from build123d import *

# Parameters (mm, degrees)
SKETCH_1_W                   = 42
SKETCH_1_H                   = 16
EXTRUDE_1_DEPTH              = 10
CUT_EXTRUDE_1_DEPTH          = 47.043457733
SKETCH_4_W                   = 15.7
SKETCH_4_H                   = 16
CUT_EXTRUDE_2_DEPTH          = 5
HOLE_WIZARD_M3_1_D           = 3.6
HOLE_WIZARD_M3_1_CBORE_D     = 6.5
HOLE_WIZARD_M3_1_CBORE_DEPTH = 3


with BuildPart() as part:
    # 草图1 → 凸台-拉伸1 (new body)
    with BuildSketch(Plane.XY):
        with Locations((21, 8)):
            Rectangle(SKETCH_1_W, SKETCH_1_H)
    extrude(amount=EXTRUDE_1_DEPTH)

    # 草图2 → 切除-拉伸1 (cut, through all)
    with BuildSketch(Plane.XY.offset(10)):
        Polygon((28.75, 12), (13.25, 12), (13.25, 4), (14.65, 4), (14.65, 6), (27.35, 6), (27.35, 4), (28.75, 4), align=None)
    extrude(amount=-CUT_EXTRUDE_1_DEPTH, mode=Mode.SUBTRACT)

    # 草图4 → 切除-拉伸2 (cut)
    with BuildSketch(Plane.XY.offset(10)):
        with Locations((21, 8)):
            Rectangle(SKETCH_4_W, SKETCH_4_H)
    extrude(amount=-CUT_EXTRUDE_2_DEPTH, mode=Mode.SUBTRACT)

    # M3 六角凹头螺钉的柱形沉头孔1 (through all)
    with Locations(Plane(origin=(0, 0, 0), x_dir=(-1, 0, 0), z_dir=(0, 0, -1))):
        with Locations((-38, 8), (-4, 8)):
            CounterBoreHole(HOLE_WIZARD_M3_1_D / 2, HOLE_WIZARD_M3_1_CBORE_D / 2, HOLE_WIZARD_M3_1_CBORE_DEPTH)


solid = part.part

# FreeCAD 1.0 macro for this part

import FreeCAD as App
import Part
import Sketcher
from FreeCAD import Vector

doc = App.newDocument("Part")
body = doc.addObject("PartDesign::Body", "Body")

# Sketch on XY plane
sketch1 = body.newObject("Sketcher::SketchObject", "Sketch")
sketch1.AttachmentSupport = (doc.getObject("XY_Plane"), [""])
sketch1.MapMode = "FlatFace"
sketch1.addGeometry([
    Part.LineSegment(Vector(0, 16, 0), Vector(0, 0, 0)),
    Part.LineSegment(Vector(0, 0, 0), Vector(42, 0, 0)),
    Part.LineSegment(Vector(42, 0, 0), Vector(42, 16, 0)),
    Part.LineSegment(Vector(42, 16, 0), Vector(0, 16, 0)),
], False)
sketch1.addConstraint([
    Sketcher.Constraint("Coincident", 0, 2, 1, 1),
    Sketcher.Constraint("Coincident", 1, 2, 2, 1),
    Sketcher.Constraint("Coincident", 2, 2, 3, 1),
    Sketcher.Constraint("Coincident", 3, 2, 0, 1),
    Sketcher.Constraint("Vertical", 0),
    Sketcher.Constraint("Horizontal", 1),
    Sketcher.Constraint("Vertical", 2),
    Sketcher.Constraint("Horizontal", 3),
    Sketcher.Constraint("Coincident", 0, 2, -1, 1),
    Sketcher.Constraint("DistanceX", 1, 1, 1, 2, 42.0),
    Sketcher.Constraint("DistanceY", 0, 2, 0, 1, 16.0),
])
pad1 = body.newObject("PartDesign::Pad", "Pad")
pad1.Profile = sketch1
pad1.Length = 10

# Sketch on XY plane
sketch2 = body.newObject("Sketcher::SketchObject", "Sketch001")
sketch2.AttachmentSupport = (doc.getObject("XY_Plane"), [""])
sketch2.MapMode = "FlatFace"
sketch2.AttachmentOffset = App.Placement(Vector(0, 0, 10), App.Rotation())
sketch2.addGeometry([
    Part.LineSegment(Vector(28.8, 12, 0), Vector(13.2, 12, 0)),  # 0
    Part.LineSegment(Vector(13.2, 12, 0), Vector(13.2, 4, 0)),  # 1
    Part.LineSegment(Vector(13.2, 4, 0), Vector(14.7, 4, 0)),  # 2
    Part.LineSegment(Vector(14.7, 4, 0), Vector(14.7, 6, 0)),  # 3
    Part.LineSegment(Vector(14.7, 6, 0), Vector(27.4, 6, 0)),  # 4
    Part.LineSegment(Vector(27.4, 6, 0), Vector(27.4, 4, 0)),  # 5
    Part.LineSegment(Vector(27.4, 4, 0), Vector(28.8, 4, 0)),  # 6
    Part.LineSegment(Vector(28.8, 4, 0), Vector(28.8, 12, 0)),  # 7
], False)
sketch2.addConstraint([
    Sketcher.Constraint("Coincident", 0, 2, 1, 1),
    Sketcher.Constraint("Coincident", 1, 2, 2, 1),
    Sketcher.Constraint("Coincident", 2, 2, 3, 1),
    Sketcher.Constraint("Coincident", 3, 2, 4, 1),
    Sketcher.Constraint("Coincident", 4, 2, 5, 1),
    Sketcher.Constraint("Coincident", 5, 2, 6, 1),
    Sketcher.Constraint("Coincident", 6, 2, 7, 1),
    Sketcher.Constraint("Coincident", 7, 2, 0, 1),
    Sketcher.Constraint("Horizontal", 0),
    Sketcher.Constraint("Vertical", 1),
    Sketcher.Constraint("Horizontal", 2),
    Sketcher.Constraint("Vertical", 3),
    Sketcher.Constraint("Horizontal", 4),
    Sketcher.Constraint("Vertical", 5),
    Sketcher.Constraint("Horizontal", 6),
    Sketcher.Constraint("Vertical", 7),
    Sketcher.Constraint("Horizontal", 2, 2, 5, 2),
    Sketcher.Constraint("Equal", 2, 6),
    Sketcher.Constraint("DistanceY", 1, 2, 1, 1, 8.0),
    Sketcher.Constraint("DistanceY", 3, 1, 3, 2, 2.0),
    Sketcher.Constraint("DistanceX", 0, 2, 0, 1, 15.5),
    Sketcher.Constraint("DistanceX", 2, 1, 2, 2, 1.4),
    Sketcher.Constraint("DistanceY", -1, 1, 0, 2, 12.0),
    Sketcher.Constraint("DistanceX", -1, 1, 0, 2, 13.25),
])
pocket1 = body.newObject("PartDesign::Pocket", "Pocket")
pocket1.Profile = sketch2
pocket1.Type = "ThroughAll"

# Sketch on XY plane
sketch3 = body.newObject("Sketcher::SketchObject", "Sketch002")
sketch3.AttachmentSupport = (doc.getObject("XY_Plane"), [""])
sketch3.MapMode = "FlatFace"
sketch3.AttachmentOffset = App.Placement(Vector(0, 0, 10), App.Rotation())
sketch3.addGeometry([
    Part.LineSegment(Vector(13, 16, 0), Vector(13, 0, 0)),
    Part.LineSegment(Vector(13, 0, 0), Vector(29, 0, 0)),
    Part.LineSegment(Vector(29, 0, 0), Vector(29, 16, 0)),
    Part.LineSegment(Vector(29, 16, 0), Vector(13, 16, 0)),
], False)
sketch3.addConstraint([
    Sketcher.Constraint("Coincident", 0, 2, 1, 1),
    Sketcher.Constraint("Coincident", 1, 2, 2, 1),
    Sketcher.Constraint("Coincident", 2, 2, 3, 1),
    Sketcher.Constraint("Coincident", 3, 2, 0, 1),
    Sketcher.Constraint("Vertical", 0),
    Sketcher.Constraint("Horizontal", 1),
    Sketcher.Constraint("Vertical", 2),
    Sketcher.Constraint("Horizontal", 3),
    Sketcher.Constraint("PointOnObject", 0, 2, -1),
    Sketcher.Constraint("DistanceY", 0, 2, 0, 1, 16.0),
    Sketcher.Constraint("DistanceX", 1, 1, 1, 2, 15.7),
    Sketcher.Constraint("DistanceX", -1, 1, 0, 2, 13.15),
])
pocket2 = body.newObject("PartDesign::Pocket", "Pocket001")
pocket2.Profile = sketch3
pocket2.Length = 5

# Sketch on XY plane
sketch4 = body.newObject("Sketcher::SketchObject", "Sketch003")
sketch4.AttachmentSupport = (doc.getObject("XY_Plane"), [""])
sketch4.MapMode = "FlatFace"
sketch4.addGeometry([
    Part.Circle(Vector(38, 8, 0), Vector(0, 0, 1), 1.8),
    Part.Circle(Vector(4, 8, 0), Vector(0, 0, 1), 1.8),
], False)
sketch4.addConstraint([
    Sketcher.Constraint("Equal", 0, 1),
    Sketcher.Constraint("Horizontal", 0, 3, 1, 3),
    Sketcher.Constraint("Diameter", 0, 3.6),
    Sketcher.Constraint("DistanceX", -1, 1, 0, 3, 38.0),
    Sketcher.Constraint("DistanceY", -1, 1, 0, 3, 8.0),
    Sketcher.Constraint("DistanceX", -1, 1, 1, 3, 4.0),
])
doc.recompute()
hole = body.newObject("PartDesign::Hole", "Hole")
hole.Profile = sketch4
hole.ThreadType = "None"
hole.Diameter = 3.6
hole.DepthType = "ThroughAll"
hole.HoleCutType = "Counterbore"
hole.HoleCutDiameter = 6.5
hole.HoleCutDepth = 3
hole.Reversed = True

doc.recompute()
